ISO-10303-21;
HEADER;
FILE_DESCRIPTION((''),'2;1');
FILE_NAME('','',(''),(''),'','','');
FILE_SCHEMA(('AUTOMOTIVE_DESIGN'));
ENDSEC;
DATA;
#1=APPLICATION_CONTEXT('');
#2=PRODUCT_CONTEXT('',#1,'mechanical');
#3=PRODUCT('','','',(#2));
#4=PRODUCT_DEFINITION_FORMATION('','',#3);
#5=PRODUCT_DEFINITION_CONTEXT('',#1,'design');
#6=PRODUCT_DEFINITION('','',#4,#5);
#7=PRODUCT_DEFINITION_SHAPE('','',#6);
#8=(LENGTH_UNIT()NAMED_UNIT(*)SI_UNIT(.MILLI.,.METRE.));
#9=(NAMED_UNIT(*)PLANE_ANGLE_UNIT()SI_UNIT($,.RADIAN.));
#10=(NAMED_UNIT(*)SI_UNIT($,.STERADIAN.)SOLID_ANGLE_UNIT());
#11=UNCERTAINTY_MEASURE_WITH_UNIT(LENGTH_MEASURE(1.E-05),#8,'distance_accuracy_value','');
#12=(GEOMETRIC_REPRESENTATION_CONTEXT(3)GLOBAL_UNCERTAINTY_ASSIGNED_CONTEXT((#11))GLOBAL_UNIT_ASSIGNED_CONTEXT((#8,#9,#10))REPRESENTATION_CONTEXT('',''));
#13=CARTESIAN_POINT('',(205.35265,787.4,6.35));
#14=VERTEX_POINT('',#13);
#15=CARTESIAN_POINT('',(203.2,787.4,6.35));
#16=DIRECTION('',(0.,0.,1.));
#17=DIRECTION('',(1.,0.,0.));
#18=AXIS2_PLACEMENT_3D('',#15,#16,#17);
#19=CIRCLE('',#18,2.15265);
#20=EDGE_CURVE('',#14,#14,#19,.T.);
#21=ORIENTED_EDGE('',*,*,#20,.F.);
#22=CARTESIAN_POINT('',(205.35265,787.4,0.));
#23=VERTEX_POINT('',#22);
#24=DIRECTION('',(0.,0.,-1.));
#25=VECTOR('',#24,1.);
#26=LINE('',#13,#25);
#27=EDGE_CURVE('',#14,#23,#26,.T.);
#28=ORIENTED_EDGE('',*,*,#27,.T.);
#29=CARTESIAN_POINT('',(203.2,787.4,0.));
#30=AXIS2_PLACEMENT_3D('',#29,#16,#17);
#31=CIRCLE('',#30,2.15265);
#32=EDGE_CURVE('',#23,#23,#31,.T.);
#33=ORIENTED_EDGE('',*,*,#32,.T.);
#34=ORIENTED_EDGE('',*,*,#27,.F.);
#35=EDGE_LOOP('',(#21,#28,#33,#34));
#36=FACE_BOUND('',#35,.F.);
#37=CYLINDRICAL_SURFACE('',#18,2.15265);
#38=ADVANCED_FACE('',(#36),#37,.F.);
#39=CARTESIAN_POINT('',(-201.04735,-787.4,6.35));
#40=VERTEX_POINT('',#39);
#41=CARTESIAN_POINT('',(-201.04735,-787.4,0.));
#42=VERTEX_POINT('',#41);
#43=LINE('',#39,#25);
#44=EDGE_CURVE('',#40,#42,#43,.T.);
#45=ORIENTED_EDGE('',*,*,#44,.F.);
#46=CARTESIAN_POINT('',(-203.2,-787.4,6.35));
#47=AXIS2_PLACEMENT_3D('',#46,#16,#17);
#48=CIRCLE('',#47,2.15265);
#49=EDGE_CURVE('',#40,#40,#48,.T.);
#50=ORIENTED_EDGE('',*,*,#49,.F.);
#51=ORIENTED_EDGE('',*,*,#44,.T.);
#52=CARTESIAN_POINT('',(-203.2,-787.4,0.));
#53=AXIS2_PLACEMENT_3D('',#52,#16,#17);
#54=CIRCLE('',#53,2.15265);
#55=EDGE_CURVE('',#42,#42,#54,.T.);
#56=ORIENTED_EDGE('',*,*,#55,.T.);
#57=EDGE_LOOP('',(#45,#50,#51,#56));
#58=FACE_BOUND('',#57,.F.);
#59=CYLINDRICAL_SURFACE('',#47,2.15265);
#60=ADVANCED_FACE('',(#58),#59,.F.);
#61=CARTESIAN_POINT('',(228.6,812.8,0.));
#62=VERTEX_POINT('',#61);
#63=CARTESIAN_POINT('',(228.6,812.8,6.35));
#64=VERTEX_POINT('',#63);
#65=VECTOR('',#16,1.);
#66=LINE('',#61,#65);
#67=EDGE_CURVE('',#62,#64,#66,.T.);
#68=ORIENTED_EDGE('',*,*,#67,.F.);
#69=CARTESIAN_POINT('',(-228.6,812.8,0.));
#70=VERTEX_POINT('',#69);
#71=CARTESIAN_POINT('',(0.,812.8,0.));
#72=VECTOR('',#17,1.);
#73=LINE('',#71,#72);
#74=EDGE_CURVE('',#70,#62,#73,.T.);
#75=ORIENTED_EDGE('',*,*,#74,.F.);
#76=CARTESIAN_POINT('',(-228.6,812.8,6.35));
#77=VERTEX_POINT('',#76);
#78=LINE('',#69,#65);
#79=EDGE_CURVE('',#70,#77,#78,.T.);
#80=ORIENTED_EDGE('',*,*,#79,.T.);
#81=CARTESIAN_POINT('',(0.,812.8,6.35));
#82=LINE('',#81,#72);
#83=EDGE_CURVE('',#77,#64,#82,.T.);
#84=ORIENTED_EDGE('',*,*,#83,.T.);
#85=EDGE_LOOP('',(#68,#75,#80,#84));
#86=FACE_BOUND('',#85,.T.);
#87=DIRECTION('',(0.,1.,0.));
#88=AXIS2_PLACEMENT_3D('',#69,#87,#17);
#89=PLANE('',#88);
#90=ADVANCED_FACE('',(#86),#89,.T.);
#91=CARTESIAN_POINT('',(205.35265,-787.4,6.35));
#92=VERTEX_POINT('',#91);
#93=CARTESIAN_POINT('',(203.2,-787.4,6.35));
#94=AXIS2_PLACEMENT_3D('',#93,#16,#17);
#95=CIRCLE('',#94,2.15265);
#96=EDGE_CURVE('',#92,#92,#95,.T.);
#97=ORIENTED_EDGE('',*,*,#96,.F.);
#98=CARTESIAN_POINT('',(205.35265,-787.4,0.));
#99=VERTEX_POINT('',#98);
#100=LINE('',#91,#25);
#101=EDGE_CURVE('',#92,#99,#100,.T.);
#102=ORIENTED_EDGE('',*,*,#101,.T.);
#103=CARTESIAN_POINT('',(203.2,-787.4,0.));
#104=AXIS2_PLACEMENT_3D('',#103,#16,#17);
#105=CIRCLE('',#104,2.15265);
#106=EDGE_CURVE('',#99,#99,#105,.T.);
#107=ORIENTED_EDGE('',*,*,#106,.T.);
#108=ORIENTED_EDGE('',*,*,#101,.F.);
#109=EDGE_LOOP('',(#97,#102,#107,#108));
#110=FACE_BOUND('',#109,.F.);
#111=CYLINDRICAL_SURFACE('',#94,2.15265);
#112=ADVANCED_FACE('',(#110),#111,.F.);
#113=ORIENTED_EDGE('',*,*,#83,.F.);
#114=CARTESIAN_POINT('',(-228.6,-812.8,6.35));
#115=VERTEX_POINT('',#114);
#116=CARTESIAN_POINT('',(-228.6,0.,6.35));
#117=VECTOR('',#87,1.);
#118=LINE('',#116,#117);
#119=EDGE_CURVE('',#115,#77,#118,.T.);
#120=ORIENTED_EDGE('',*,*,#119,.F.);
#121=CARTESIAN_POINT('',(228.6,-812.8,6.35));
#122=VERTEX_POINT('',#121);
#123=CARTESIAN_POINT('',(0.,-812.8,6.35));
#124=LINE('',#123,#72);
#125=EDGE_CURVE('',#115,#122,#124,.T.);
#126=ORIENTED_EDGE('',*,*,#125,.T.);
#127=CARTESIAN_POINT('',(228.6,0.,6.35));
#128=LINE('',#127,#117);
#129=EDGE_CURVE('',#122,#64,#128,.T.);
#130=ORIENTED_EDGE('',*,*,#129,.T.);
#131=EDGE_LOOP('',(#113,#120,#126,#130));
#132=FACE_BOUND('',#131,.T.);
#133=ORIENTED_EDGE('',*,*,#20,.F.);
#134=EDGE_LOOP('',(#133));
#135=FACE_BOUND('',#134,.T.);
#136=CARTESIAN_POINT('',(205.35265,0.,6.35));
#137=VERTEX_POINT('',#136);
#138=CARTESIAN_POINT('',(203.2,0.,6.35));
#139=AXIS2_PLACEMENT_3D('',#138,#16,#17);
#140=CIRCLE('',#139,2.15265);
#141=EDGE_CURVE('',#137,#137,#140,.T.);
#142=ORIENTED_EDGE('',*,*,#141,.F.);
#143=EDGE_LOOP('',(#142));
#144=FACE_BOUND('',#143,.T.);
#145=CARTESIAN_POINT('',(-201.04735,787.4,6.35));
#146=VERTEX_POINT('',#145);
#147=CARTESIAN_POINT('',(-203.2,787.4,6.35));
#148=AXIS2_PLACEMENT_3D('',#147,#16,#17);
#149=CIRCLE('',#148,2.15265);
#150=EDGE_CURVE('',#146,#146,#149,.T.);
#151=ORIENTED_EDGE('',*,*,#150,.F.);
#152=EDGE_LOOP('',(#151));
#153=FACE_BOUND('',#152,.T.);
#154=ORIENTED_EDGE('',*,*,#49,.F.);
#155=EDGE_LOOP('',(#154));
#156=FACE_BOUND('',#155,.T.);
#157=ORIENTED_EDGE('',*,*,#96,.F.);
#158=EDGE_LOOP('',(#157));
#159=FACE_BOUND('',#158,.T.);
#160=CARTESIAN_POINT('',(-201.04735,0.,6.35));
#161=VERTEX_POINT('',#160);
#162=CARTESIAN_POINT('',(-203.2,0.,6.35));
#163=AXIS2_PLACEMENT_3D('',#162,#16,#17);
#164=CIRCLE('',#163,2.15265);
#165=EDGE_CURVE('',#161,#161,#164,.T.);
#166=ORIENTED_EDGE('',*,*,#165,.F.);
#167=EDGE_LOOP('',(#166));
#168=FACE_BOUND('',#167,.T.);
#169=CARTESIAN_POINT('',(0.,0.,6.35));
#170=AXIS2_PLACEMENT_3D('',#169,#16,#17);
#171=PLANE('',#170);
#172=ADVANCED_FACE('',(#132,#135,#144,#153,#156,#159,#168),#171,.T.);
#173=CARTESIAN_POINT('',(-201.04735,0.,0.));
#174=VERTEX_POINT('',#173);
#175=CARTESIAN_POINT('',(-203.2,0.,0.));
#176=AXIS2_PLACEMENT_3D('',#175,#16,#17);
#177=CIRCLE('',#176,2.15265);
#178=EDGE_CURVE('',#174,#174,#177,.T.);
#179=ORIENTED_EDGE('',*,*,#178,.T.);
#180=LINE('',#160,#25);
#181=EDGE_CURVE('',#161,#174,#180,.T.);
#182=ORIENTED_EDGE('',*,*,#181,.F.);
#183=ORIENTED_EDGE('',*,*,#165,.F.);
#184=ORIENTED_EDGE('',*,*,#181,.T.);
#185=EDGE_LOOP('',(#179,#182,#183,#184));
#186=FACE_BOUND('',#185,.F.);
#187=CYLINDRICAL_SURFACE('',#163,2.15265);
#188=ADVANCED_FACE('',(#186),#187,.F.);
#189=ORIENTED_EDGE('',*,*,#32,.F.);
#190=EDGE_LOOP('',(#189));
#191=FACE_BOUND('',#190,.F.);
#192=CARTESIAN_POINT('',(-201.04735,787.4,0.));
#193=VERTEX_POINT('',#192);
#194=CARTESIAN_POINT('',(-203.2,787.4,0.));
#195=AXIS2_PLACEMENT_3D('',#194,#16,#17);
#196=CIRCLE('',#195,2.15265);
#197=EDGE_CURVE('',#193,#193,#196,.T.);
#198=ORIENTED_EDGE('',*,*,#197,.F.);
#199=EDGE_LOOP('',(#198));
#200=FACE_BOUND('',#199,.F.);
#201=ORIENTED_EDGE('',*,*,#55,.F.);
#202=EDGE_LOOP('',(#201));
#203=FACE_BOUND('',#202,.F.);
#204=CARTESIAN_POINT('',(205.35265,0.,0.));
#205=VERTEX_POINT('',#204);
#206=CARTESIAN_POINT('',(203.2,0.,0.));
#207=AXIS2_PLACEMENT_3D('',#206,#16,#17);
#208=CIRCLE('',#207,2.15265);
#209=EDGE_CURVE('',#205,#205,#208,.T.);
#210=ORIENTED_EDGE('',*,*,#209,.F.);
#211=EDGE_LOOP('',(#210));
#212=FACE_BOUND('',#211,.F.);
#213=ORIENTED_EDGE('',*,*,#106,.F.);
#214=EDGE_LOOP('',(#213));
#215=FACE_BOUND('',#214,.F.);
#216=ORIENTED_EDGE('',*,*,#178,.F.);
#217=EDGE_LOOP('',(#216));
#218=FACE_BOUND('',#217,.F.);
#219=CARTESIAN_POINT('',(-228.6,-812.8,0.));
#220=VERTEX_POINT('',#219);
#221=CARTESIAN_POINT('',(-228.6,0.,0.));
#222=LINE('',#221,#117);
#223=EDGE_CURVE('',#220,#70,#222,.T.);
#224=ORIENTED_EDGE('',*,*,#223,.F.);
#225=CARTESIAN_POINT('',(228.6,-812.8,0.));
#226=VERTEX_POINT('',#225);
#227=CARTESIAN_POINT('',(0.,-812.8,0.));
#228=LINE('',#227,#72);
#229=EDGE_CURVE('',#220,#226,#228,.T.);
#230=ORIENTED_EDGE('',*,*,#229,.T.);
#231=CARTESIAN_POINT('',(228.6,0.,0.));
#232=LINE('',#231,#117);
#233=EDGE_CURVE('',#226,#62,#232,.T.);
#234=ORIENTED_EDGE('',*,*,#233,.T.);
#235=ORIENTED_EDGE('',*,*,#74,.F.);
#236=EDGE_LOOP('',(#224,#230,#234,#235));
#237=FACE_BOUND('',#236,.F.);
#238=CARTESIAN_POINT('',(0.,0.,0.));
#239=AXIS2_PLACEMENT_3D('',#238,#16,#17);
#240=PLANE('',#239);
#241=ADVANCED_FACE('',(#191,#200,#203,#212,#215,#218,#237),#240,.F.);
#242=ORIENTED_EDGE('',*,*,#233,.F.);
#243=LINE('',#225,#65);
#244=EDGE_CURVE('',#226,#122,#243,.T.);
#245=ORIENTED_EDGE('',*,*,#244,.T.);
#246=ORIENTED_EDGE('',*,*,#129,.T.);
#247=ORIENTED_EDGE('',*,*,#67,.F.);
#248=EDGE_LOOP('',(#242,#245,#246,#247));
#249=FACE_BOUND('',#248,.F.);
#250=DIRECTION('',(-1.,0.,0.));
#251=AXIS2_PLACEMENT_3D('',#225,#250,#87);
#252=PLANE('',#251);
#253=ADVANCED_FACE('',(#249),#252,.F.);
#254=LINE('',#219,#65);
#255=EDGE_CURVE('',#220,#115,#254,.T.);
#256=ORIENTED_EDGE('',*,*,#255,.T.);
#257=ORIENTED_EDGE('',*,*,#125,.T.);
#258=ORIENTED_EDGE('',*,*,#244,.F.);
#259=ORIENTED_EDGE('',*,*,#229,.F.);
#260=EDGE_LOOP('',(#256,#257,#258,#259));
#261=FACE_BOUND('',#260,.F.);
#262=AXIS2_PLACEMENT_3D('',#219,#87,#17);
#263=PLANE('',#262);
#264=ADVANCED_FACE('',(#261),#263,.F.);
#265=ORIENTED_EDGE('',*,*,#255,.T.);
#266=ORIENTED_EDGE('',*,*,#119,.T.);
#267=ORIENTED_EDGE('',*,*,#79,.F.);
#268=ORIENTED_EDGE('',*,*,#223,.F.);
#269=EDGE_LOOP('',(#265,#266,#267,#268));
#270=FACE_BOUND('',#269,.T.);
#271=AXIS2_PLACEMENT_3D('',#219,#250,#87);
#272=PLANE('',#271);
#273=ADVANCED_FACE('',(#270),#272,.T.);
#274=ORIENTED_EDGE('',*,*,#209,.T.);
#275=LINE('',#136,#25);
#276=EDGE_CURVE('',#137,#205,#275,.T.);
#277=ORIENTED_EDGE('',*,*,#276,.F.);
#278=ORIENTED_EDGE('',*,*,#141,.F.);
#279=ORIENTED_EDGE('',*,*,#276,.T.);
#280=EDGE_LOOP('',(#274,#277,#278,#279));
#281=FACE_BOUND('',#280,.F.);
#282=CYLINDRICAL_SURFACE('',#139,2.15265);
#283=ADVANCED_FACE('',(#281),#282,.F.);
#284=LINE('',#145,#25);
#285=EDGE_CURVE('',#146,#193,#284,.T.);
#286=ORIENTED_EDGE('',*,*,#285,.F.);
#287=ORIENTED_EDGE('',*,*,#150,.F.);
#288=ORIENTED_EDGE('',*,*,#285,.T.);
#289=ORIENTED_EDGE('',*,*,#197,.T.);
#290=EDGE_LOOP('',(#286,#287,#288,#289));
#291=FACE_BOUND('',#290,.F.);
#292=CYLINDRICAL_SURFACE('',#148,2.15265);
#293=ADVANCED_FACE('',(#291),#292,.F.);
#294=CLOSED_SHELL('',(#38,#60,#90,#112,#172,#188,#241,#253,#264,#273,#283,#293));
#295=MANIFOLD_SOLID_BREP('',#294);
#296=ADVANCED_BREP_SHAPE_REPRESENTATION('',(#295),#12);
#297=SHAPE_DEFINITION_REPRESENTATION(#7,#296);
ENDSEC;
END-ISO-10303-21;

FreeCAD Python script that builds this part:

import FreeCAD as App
import Part
import Sketcher
from FreeCAD import Vector
Q = App.Units.Quantity

doc = App.newDocument("Part")
params = doc.addObject("Spreadsheet::Sheet", "Params")
for row, (alias, value) in enumerate([
    ("sketch1_width", "18 in"),
    ("sketch1_height", "64 in"),
    ("pad1_length", "0.25 in"),
], start=1):
    params.set(f"A{row}", alias)
    params.set(f"B{row}", "=" + value)
    params.setAlias(f"B{row}", alias)

body = doc.addObject("PartDesign::Body", "Body")

sketch1 = doc.addObject("Sketcher::SketchObject", "Sketch")
body.addObject(sketch1)
sketch1.AttachmentSupport = (doc.XY_Plane, [""])
sketch1.MapMode = "FlatFace"
sketch1.addGeometry([
    Part.LineSegment(Vector(-228.6, 812.8, 0), Vector(-228.6, -812.8, 0)),
    Part.LineSegment(Vector(-228.6, -812.8, 0), Vector(228.6, -812.8, 0)),
    Part.LineSegment(Vector(228.6, -812.8, 0), Vector(228.6, 812.8, 0)),
    Part.LineSegment(Vector(228.6, 812.8, 0), Vector(-228.6, 812.8, 0)),
], False)
sketch1.addConstraint([
    Sketcher.Constraint("Coincident", 0, 2, 1, 1),
    Sketcher.Constraint("Coincident", 1, 2, 2, 1),
    Sketcher.Constraint("Coincident", 2, 2, 3, 1),
    Sketcher.Constraint("Coincident", 3, 2, 0, 1),
    Sketcher.Constraint("Vertical", 0),
    Sketcher.Constraint("Horizontal", 1),
    Sketcher.Constraint("Vertical", 2),
    Sketcher.Constraint("Horizontal", 3),
    Sketcher.Constraint("Symmetric", 0, 2, 2, 2, -1, 1),
    Sketcher.Constraint("DistanceX", 1, 1, 1, 2, Q("18 in")),
    Sketcher.Constraint("DistanceY", 0, 2, 0, 1, Q("64 in")),
])
sketch1.setExpression("Constraints[9]", "Params.sketch1_width")
sketch1.setExpression("Constraints[10]", "Params.sketch1_height")
pad1 = doc.addObject("PartDesign::Pad", "Pad")
body.addObject(pad1)
pad1.Profile = sketch1
pad1.setExpression("Length", "Params.pad1_length")

sketch2 = doc.addObject("Sketcher::SketchObject", "Sketch001")
body.addObject(sketch2)
sketch2.AttachmentSupport = (doc.XY_Plane, [""])
sketch2.MapMode = "FlatFace"
sketch2.AttachmentOffset = App.Placement(Vector(0, 0, 0.25 * 25.4), App.Rotation())
sketch2.addGeometry([
    Part.Circle(Vector(-203.2, -787.4, 0), Vector(0, 0, 1), 2.15265),
    Part.Circle(Vector(203.2, -787.4, 0), Vector(0, 0, 1), 2.15265),
    Part.Circle(Vector(203.2, 0, 0), Vector(0, 0, 1), 2.15265),
    Part.Circle(Vector(-203.2, 0, 0), Vector(0, 0, 1), 2.15265),
    Part.Circle(Vector(-203.2, 787.4, 0), Vector(0, 0, 1), 2.15265),
    Part.Circle(Vector(203.2, 787.4, 0), Vector(0, 0, 1), 2.15265),
], False)
sketch2.addConstraint([
    Sketcher.Constraint("Equal", 0, 1),
    Sketcher.Constraint("Equal", 1, 2),
    Sketcher.Constraint("Equal", 2, 3),
    Sketcher.Constraint("Equal", 3, 4),
    Sketcher.Constraint("Equal", 4, 5),
    Sketcher.Constraint("Symmetric", 2, 3, 3, 3, -1, 1),
    Sketcher.Constraint("Symmetric", 1, 3, 4, 3, -1, 1),
    Sketcher.Constraint("Symmetric", 0, 3, 5, 3, -1, 1),
    Sketcher.Constraint("Symmetric", 0, 3, 1, 3, -2),
    Sketcher.Constraint("PointOnObject", 2, 3, -1),
    Sketcher.Constraint("Vertical", 1, 3, 2, 3),
    Sketcher.Constraint("DistanceX", 0, 3, -1, 1, Q("8 in")),
    Sketcher.Constraint("DistanceY", 0, 3, -1, 1, Q("31 in")),
    Sketcher.Constraint("Diameter", 0, Q("0.1695 in")),
])
pocket1 = doc.addObject("PartDesign::Pocket", "Pocket")
body.addObject(pocket1)
pocket1.Profile = sketch2
pocket1.Type = "ThroughAll"

doc.recompute()
